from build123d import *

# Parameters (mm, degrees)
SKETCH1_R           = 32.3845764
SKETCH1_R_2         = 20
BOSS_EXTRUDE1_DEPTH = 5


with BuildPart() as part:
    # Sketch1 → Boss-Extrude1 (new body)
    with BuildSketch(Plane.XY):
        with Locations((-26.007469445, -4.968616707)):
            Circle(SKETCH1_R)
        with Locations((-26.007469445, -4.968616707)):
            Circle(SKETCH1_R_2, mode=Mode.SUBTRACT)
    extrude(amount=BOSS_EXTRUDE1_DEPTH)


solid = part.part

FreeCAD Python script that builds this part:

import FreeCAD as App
import Part
import Sketcher

V = App.Vector

doc = App.newDocument("Part")
params = doc.addObject("Spreadsheet::Sheet", "Params")
for row, (alias, value) in enumerate([
    ("sketch1_diameter", "40 mm"),
    ("pad1_length", "5 mm"),
], start=1):
    params.set(f"A{row}", alias)
    params.set(f"B{row}", "=" + value)
    params.setAlias(f"B{row}", alias)

body = doc.addObject("PartDesign::Body", "Body")

# Sketch on XY plane
sketch1 = body.newObject("Sketcher::SketchObject", "Sketch")
sketch1.AttachmentSupport = (doc.getObject("XY_Plane"), [""])
sketch1.MapMode = "FlatFace"
sketch1.addGeometry([
    Part.Circle(V(-26, -5, 0), V(0, 0, 1), 32),
    Part.Circle(V(-26, -5, 0), V(0, 0, 1), 20),
], False)
sketch1.addConstraint([
    Sketcher.Constraint("Coincident", 1, 3, 0, 3),
    Sketcher.Constraint("Diameter", 1, 40.0),
    Sketcher.Constraint("Diameter", 0, 64.769153),
    Sketcher.Constraint("DistanceX", 0, 3, -1, 1, 26.007469),
    Sketcher.Constraint("DistanceY", 0, 3, -1, 1, 4.968617),
])
sketch1.setExpression("Constraints[1]", "Params.sketch1_diameter")
pad1 = body.newObject("PartDesign::Pad", "Pad")
pad1.Profile = sketch1
pad1.setExpression("Length", "Params.pad1_length")

doc.recompute()
